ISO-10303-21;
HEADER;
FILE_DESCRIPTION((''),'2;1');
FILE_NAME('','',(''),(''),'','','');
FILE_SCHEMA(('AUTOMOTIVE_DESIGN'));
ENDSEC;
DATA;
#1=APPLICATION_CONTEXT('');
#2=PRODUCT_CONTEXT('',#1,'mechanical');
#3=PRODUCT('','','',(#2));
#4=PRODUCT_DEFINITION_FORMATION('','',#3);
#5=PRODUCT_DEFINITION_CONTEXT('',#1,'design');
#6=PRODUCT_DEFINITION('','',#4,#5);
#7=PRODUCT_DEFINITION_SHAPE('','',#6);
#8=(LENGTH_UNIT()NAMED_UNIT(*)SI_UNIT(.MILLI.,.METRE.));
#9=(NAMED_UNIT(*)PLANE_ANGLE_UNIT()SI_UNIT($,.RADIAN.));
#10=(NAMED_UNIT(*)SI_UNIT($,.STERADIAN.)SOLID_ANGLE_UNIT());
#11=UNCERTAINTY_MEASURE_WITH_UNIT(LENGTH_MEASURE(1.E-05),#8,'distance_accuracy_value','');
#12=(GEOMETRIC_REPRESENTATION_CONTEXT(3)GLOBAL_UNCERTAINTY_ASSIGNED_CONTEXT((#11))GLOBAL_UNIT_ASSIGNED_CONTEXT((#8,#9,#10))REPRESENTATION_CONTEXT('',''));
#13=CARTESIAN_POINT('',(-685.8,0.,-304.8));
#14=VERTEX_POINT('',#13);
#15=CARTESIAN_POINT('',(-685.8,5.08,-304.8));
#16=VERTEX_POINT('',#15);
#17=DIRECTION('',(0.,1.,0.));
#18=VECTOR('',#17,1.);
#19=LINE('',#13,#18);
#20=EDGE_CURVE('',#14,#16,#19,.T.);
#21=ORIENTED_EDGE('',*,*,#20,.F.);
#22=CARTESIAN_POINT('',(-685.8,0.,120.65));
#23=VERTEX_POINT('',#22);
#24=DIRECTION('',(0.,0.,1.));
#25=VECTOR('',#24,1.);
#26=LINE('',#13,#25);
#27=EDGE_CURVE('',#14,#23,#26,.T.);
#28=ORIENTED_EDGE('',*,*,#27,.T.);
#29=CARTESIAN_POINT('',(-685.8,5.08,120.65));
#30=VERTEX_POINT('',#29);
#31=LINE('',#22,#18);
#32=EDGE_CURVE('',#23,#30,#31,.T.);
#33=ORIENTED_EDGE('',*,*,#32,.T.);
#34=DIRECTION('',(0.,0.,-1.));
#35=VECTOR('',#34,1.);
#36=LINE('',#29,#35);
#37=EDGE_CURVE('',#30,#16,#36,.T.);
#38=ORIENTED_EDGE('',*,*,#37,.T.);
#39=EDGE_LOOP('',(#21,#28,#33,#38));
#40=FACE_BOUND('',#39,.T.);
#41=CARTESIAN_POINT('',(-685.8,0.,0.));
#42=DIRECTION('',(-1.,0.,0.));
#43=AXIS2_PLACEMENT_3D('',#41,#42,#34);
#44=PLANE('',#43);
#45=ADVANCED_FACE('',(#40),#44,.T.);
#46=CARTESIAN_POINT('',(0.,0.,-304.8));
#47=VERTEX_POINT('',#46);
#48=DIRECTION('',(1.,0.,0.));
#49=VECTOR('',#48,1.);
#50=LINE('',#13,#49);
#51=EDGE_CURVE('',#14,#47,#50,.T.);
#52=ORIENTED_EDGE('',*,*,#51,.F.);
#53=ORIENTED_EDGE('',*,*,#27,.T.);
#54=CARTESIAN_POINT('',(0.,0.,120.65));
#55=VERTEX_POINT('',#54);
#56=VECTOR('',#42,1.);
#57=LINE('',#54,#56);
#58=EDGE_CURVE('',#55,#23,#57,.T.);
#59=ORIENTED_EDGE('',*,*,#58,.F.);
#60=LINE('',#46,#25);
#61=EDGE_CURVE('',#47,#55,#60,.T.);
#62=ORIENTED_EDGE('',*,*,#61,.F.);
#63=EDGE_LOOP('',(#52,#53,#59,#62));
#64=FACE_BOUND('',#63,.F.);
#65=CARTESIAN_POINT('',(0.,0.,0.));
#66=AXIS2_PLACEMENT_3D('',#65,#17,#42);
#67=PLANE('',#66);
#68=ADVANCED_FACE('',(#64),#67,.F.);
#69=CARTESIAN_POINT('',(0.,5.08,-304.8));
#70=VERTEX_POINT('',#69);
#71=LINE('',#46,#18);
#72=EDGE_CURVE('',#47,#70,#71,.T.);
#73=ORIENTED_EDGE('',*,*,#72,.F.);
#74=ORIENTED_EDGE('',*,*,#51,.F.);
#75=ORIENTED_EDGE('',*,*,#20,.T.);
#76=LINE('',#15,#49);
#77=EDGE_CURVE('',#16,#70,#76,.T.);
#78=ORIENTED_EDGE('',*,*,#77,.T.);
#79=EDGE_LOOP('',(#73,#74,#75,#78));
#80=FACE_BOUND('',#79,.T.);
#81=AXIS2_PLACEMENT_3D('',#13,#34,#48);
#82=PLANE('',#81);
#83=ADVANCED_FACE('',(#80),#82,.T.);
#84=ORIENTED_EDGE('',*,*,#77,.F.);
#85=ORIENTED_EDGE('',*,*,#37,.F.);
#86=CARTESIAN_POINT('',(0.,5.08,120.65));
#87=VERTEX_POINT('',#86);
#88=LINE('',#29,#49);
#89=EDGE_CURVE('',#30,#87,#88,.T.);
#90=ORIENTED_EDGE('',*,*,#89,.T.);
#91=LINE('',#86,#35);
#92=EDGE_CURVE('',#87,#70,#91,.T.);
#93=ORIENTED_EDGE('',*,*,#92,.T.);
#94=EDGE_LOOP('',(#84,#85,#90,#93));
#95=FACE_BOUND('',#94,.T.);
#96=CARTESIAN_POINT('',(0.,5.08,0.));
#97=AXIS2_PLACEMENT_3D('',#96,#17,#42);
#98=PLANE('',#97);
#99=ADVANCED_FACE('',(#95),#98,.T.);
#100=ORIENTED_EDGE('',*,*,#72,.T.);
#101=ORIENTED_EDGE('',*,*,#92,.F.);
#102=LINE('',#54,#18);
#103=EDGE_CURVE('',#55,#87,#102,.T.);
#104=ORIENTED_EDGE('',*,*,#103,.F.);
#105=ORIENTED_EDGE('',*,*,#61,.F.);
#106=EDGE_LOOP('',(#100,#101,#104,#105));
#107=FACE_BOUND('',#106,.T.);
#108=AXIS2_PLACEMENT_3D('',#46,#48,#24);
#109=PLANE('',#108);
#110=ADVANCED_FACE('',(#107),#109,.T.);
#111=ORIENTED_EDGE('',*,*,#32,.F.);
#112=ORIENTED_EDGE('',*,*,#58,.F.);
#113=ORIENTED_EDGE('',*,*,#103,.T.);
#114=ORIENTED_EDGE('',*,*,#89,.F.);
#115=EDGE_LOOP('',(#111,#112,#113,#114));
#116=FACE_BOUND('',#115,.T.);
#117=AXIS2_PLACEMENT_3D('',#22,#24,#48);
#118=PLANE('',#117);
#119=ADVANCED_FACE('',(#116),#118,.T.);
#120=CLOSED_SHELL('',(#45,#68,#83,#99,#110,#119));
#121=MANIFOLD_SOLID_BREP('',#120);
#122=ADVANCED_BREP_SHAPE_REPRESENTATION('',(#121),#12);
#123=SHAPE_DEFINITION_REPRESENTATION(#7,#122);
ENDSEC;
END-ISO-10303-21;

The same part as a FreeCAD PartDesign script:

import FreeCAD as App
import Part
import Sketcher
from FreeCAD import Vector
Q = App.Units.Quantity

doc = App.newDocument("Part")
params = doc.addObject("Spreadsheet::Sheet", "Params")
for row, (alias, value) in enumerate([
    ("sketch1_width", "27 in"),
    ("sketch1_height", "12 in"),
    ("pad1_length", "0.2 in"),
    ("sketch2_width", "27 in"),
    ("sketch2_height", "0.2 in"),
    ("pad2_length", "4.75 in"),
], start=1):
    params.set(f"A{row}", alias)
    params.set(f"B{row}", "=" + value)
    params.setAlias(f"B{row}", alias)

body = doc.addObject("PartDesign::Body", "Body")

# Sketch on XZ plane
sketch1 = body.newObject("Sketcher::SketchObject", "Sketch")
sketch1.AttachmentSupport = (doc.getObject("XZ_Plane"), [""])
sketch1.MapMode = "FlatFace"
sketch1.addGeometry(Part.LineSegment(Vector(-685.8, 0, 0), Vector(0, 0, 0)), False)
sketch1.addGeometry(Part.LineSegment(Vector(0, 0, 0), Vector(0, -304.8, 0)), False)
sketch1.addGeometry(Part.LineSegment(Vector(0, -304.8, 0), Vector(-685.8, -304.8, 0)), False)
sketch1.addGeometry(Part.LineSegment(Vector(-685.8, -304.8, 0), Vector(-685.8, 0, 0)), False)
sketch1.addConstraint(Sketcher.Constraint("Coincident", 0, 2, 1, 1))
sketch1.addConstraint(Sketcher.Constraint("Coincident", 1, 2, 2, 1))
sketch1.addConstraint(Sketcher.Constraint("Coincident", 2, 2, 3, 1))
sketch1.addConstraint(Sketcher.Constraint("Coincident", 3, 2, 0, 1))
sketch1.addConstraint(Sketcher.Constraint("Horizontal", 0))
sketch1.addConstraint(Sketcher.Constraint("Vertical", 1))
sketch1.addConstraint(Sketcher.Constraint("Horizontal", 2))
sketch1.addConstraint(Sketcher.Constraint("Vertical", 3))
sketch1.addConstraint(Sketcher.Constraint("Coincident", 0, 2, -1, 1))
sketch1.addConstraint(Sketcher.Constraint("DistanceX", 0, 1, 0, 2, Q("27 in")))
sketch1.addConstraint(Sketcher.Constraint("DistanceY", 1, 2, 1, 1, Q("12 in")))
sketch1.setExpression("Constraints[9]", "Params.sketch1_width")
sketch1.setExpression("Constraints[10]", "Params.sketch1_height")
pad1 = body.newObject("PartDesign::Pad", "Pad")
pad1.Profile = sketch1
pad1.setExpression("Length", "Params.pad1_length")
pad1.Reversed = True

# Sketch on XY plane
sketch2 = body.newObject("Sketcher::SketchObject", "Sketch001")
sketch2.AttachmentSupport = (doc.getObject("XY_Plane"), [""])
sketch2.MapMode = "FlatFace"
sketch2.addGeometry(Part.LineSegment(Vector(-685.8, 0, 0), Vector(0, 0, 0)), False)
sketch2.addGeometry(Part.LineSegment(Vector(0, 0, 0), Vector(0, 5.08, 0)), False)
sketch2.addGeometry(Part.LineSegment(Vector(0, 5.08, 0), Vector(-685.8, 5.08, 0)), False)
sketch2.addGeometry(Part.LineSegment(Vector(-685.8, 5.08, 0), Vector(-685.8, 0, 0)), False)
sketch2.addConstraint(Sketcher.Constraint("Coincident", 0, 2, 1, 1))
sketch2.addConstraint(Sketcher.Constraint("Coincident", 1, 2, 2, 1))
sketch2.addConstraint(Sketcher.Constraint("Coincident", 2, 2, 3, 1))
sketch2.addConstraint(Sketcher.Constraint("Coincident", 3, 2, 0, 1))
sketch2.addConstraint(Sketcher.Constraint("Horizontal", 0))
sketch2.addConstraint(Sketcher.Constraint("Vertical", 1))
sketch2.addConstraint(Sketcher.Constraint("Horizontal", 2))
sketch2.addConstraint(Sketcher.Constraint("Vertical", 3))
sketch2.addConstraint(Sketcher.Constraint("Coincident", 0, 2, -1, 1))
sketch2.addConstraint(Sketcher.Constraint("DistanceX", 0, 1, 0, 2, Q("27 in")))
sketch2.addConstraint(Sketcher.Constraint("DistanceY", 1, 1, 1, 2, Q("0.2 in")))
sketch2.setExpression("Constraints[9]", "Params.sketch2_width")
sketch2.setExpression("Constraints[10]", "Params.sketch2_height")
pad2 = body.newObject("PartDesign::Pad", "Pad001")
pad2.Profile = sketch2
pad2.setExpression("Length", "Params.pad2_length")

doc.recompute()
